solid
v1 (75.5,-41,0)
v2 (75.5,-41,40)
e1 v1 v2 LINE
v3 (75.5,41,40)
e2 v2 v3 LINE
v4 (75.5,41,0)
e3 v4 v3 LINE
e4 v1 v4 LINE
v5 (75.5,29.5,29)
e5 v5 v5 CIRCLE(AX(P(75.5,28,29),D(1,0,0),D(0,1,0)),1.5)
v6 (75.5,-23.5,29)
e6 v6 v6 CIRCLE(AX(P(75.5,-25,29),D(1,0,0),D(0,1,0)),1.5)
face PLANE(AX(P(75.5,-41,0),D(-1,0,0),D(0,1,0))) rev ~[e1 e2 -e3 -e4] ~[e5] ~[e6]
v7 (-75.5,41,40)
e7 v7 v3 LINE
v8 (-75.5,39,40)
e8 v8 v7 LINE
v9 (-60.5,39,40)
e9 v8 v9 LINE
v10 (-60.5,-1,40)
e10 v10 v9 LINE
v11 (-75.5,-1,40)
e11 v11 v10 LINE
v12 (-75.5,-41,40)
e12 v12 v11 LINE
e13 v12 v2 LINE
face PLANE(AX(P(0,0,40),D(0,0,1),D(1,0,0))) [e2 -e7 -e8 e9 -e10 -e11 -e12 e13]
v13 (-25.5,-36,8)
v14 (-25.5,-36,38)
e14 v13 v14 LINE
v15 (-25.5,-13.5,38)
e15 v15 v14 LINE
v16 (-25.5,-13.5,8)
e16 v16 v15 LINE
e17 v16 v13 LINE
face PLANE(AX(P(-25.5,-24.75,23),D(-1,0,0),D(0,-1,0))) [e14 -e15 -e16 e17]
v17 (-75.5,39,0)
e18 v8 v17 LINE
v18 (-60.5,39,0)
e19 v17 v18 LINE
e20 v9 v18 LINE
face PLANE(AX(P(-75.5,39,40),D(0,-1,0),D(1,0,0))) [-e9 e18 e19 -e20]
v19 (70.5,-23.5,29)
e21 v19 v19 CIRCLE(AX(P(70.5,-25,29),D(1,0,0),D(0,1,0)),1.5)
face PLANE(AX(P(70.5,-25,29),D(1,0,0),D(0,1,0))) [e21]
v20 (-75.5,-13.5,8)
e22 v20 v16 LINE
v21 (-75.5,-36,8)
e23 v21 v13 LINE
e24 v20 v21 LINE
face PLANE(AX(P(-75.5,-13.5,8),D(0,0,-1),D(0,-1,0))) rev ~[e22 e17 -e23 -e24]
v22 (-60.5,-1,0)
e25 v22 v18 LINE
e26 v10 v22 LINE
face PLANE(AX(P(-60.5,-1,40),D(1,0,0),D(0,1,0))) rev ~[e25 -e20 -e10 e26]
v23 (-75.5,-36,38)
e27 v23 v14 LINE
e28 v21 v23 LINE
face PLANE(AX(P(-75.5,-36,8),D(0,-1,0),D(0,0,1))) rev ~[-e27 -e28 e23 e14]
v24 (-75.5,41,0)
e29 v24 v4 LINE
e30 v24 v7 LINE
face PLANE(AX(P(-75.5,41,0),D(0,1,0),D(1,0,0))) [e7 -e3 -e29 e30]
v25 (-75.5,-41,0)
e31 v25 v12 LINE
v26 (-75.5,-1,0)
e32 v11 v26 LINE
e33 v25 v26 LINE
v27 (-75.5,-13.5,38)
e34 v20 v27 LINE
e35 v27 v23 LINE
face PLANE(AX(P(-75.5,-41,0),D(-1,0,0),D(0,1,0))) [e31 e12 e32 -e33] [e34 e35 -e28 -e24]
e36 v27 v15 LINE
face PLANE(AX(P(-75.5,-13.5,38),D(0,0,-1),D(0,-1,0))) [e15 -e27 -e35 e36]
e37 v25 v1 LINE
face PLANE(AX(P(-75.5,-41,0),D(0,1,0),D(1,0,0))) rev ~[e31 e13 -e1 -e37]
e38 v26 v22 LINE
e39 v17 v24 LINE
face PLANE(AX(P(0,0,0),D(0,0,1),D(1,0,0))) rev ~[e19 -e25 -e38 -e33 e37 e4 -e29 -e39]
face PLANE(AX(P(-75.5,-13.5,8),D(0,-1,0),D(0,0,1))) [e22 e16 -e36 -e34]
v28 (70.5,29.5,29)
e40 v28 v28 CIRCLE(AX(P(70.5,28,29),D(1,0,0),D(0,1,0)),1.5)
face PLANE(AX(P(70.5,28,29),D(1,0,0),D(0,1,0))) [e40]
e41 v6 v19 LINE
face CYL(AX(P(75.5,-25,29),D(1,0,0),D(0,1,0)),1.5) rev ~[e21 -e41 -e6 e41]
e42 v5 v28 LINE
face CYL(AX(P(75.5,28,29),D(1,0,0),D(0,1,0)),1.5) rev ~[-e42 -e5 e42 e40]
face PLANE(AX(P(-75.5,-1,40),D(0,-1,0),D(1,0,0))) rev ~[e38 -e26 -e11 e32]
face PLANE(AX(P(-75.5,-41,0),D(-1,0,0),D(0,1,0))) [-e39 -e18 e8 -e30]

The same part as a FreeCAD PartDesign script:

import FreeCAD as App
import Part
import Sketcher

V = App.Vector
Q = App.Units.Quantity


def add_polygon(sketch, points):
    """Adds a closed chain of lines whose ends are joined by coincident constraints."""
    first, n = sketch.GeometryCount, len(points)
    for a, b in zip(points, points[1:] + points[:1]):
        sketch.addGeometry(Part.LineSegment(App.Vector(*a, 0), App.Vector(*b, 0)), False)
    for i in range(n):
        sketch.addConstraint(Sketcher.Constraint("Coincident", first + i, 2, first + (i + 1) % n, 1))

doc = App.newDocument("Part")
params = doc.addObject("Spreadsheet::Sheet", "Params")
for row, (alias, value) in enumerate([
    ("sketch1_width", "151 mm"),
    ("sketch1_height", "82 mm"),
    ("pad1_length", "40 mm"),
    ("sketch2_width", "15 mm"),
    ("sketch2_height", "40 mm"),
    ("pocket1_length", "41 mm"),
    ("sketch3_height", "30 mm"),
    ("sketch3_width", "22.5 mm"),
    ("pocket2_length", "50 mm"),
    ("sketch4_diameter", "3 mm"),
    ("pocket3_length", "5 mm"),
], start=1):
    params.set(f"A{row}", alias)
    params.set(f"B{row}", "=" + value)
    params.setAlias(f"B{row}", alias)

body = doc.addObject("PartDesign::Body", "Body")

sketch1 = body.newObject("Sketcher::SketchObject", "Sketch")
sketch1.AttachmentSupport = (doc.getObject("XY_Plane"), [""])
sketch1.MapMode = "FlatFace"
add_polygon(sketch1, [(-76, 41), (-76, -41), (76, -41), (76, 41)])
sketch1.addConstraint([
    Sketcher.Constraint("Vertical", 0),
    Sketcher.Constraint("Horizontal", 1),
    Sketcher.Constraint("Vertical", 2),
    Sketcher.Constraint("Horizontal", 3),
    Sketcher.Constraint("Symmetric", 0, 2, 2, 2, -1, 1),
    Sketcher.Constraint("DistanceX", 1, 1, 1, 2, Q("151 mm")),
    Sketcher.Constraint("DistanceY", 0, 2, 0, 1, Q("82 mm")),
])
sketch1.setExpression("Constraints[9]", "Params.sketch1_width")
sketch1.setExpression("Constraints[10]", "Params.sketch1_height")
pad1 = body.newObject("PartDesign::Pad", "Pad")
pad1.Profile = sketch1
pad1.setExpression("Length", "Params.pad1_length")

sketch2 = body.newObject("Sketcher::SketchObject", "Sketch001")
sketch2.AttachmentSupport = (doc.getObject("XY_Plane"), [""])
sketch2.MapMode = "FlatFace"
sketch2.AttachmentOffset = App.Placement(V(0, 0, 40), App.Rotation())
add_polygon(sketch2, [(-76, 39), (-76, -1), (-60, -1), (-60, 39)])
sketch2.addConstraint([
    Sketcher.Constraint("Vertical", 0),
    Sketcher.Constraint("Horizontal", 1),
    Sketcher.Constraint("Vertical", 2),
    Sketcher.Constraint("Horizontal", 3),
    Sketcher.Constraint("DistanceX", 1, 1, 1, 2, Q("15 mm")),
    Sketcher.Constraint("DistanceY", 0, 2, 0, 1, Q("40 mm")),
    Sketcher.Constraint("DistanceY", 0, 2, -1, 1, Q("1 mm")),
    Sketcher.Constraint("DistanceX", 0, 2, -1, 1, Q("75.5 mm")),
])
sketch2.setExpression("Constraints[8]", "Params.sketch2_width")
sketch2.setExpression("Constraints[9]", "Params.sketch2_height")
pocket1 = body.newObject("PartDesign::Pocket", "Pocket")
pocket1.Profile = sketch2
pocket1.setExpression("Length", "Params.pocket1_length")

sketch3 = body.newObject("Sketcher::SketchObject", "Sketch002")
sketch3.AttachmentSupport = (doc.getObject("YZ_Plane"), [""])
sketch3.MapMode = "FlatFace"
sketch3.AttachmentOffset = App.Placement(V(0, 0, -75.5), App.Rotation())
add_polygon(sketch3, [(-14, 38), (-14, 8), (-36, 8), (-36, 38)])
sketch3.addConstraint([
    Sketcher.Constraint("Vertical", 0),
    Sketcher.Constraint("Horizontal", 1),
    Sketcher.Constraint("Vertical", 2),
    Sketcher.Constraint("Horizontal", 3),
    Sketcher.Constraint("DistanceY", 0, 2, 0, 1, Q("30 mm")),
    Sketcher.Constraint("DistanceX", 1, 2, 1, 1, Q("22.5 mm")),
    Sketcher.Constraint("DistanceY", -1, 1, 0, 2, Q("8 mm")),
    Sketcher.Constraint("DistanceX", 1, 2, -1, 1, Q("36 mm")),
])
sketch3.setExpression("Constraints[8]", "Params.sketch3_height")
sketch3.setExpression("Constraints[9]", "Params.sketch3_width")
pocket2 = body.newObject("PartDesign::Pocket", "Pocket001")
pocket2.Profile = sketch3
pocket2.setExpression("Length", "Params.pocket2_length")
pocket2.Reversed = True

sketch4 = body.newObject("Sketcher::SketchObject", "Sketch003")
sketch4.AttachmentSupport = (doc.getObject("YZ_Plane"), [""])
sketch4.MapMode = "FlatFace"
sketch4.AttachmentOffset = App.Placement(V(0, 0, 75.5), App.Rotation())
sketch4.addGeometry([
    Part.Circle(V(-25, 29, 0), V(0, 0, 1), 1.5),
    Part.Circle(V(28, 29, 0), V(0, 0, 1), 1.5),
], False)
sketch4.addConstraint([
    Sketcher.Constraint("Equal", 0, 1),
    Sketcher.Constraint("Horizontal", 0, 3, 1, 3),
    Sketcher.Constraint("Diameter", 0, Q("3 mm")),
    Sketcher.Constraint("DistanceX", 0, 3, -1, 1, Q("25 mm")),
    Sketcher.Constraint("DistanceY", -1, 1, 0, 3, Q("29 mm")),
    Sketcher.Constraint("DistanceX", -1, 1, 1, 3, Q("28 mm")),
])
sketch4.setExpression("Constraints[2]", "Params.sketch4_diameter")
pocket3 = body.newObject("PartDesign::Pocket", "Pocket002")
pocket3.Profile = sketch4
pocket3.setExpression("Length", "Params.pocket3_length")

doc.recompute()
